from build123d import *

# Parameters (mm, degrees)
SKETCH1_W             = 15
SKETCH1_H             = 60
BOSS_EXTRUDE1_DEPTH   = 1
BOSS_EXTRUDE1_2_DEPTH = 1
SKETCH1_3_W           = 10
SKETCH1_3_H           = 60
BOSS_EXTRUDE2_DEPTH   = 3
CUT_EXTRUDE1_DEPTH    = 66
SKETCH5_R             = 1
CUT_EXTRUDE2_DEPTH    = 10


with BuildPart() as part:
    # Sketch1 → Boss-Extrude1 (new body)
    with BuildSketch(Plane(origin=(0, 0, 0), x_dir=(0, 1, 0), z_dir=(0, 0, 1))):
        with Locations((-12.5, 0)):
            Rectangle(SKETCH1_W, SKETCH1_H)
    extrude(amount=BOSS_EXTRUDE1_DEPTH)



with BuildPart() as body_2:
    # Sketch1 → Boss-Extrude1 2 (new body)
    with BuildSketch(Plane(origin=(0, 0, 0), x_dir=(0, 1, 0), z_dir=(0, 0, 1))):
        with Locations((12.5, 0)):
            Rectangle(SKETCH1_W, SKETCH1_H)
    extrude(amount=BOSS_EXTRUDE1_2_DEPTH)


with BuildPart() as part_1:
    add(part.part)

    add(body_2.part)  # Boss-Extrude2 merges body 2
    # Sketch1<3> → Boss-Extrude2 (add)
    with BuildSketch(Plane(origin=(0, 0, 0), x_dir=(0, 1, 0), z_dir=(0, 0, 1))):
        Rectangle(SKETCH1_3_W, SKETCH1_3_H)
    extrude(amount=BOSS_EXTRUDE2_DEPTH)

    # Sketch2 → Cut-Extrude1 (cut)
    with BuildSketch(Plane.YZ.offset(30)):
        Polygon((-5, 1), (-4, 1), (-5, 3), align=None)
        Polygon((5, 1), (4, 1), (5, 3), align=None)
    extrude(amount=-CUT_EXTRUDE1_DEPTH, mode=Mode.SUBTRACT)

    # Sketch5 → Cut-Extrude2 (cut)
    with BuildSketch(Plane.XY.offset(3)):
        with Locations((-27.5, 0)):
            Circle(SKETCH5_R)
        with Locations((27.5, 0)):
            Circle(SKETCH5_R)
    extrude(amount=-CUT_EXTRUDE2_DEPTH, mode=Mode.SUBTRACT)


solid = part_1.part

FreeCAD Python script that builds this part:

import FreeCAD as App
import Part
import Sketcher
Q = App.Units.Quantity

doc = App.newDocument("Part")
body = doc.addObject("PartDesign::Body", "Body")

sketch1 = doc.addObject("Sketcher::SketchObject", "Sketch")
body.addObject(sketch1)
sketch1.AttachmentSupport = (doc.XY_Plane, [""])
sketch1.MapMode = "FlatFace"
sketch1.addGeometry([
    Part.LineSegment(App.Vector(-30, -20, 0), App.Vector(30, -20, 0)),
    Part.LineSegment(App.Vector(30, -20, 0), App.Vector(30, -5, 0)),
    Part.LineSegment(App.Vector(30, -5, 0), App.Vector(-30, -5, 0)),
    Part.LineSegment(App.Vector(-30, -5, 0), App.Vector(-30, -20, 0)),
], False)
sketch1.addConstraint([
    Sketcher.Constraint("Coincident", 0, 2, 1, 1),
    Sketcher.Constraint("Coincident", 1, 2, 2, 1),
    Sketcher.Constraint("Coincident", 2, 2, 3, 1),
    Sketcher.Constraint("Coincident", 3, 2, 0, 1),
    Sketcher.Constraint("Horizontal", 0),
    Sketcher.Constraint("Vertical", 1),
    Sketcher.Constraint("Horizontal", 2),
    Sketcher.Constraint("Vertical", 3),
    Sketcher.Constraint("DistanceX", 0, 1, 0, 2, Q("60 mm")),
    Sketcher.Constraint("DistanceY", 1, 1, 1, 2, Q("15 mm")),
    Sketcher.Constraint("DistanceX", -1, 1, 0, 2, Q("30 mm")),
    Sketcher.Constraint("DistanceY", 0, 2, -1, 1, Q("20 mm")),
])
pad1 = doc.addObject("PartDesign::Pad", "Pad")
body.addObject(pad1)
pad1.Profile = sketch1
pad1.Length = 1
body2 = doc.addObject("PartDesign::Body", "Body001")

sketch2 = doc.addObject("Sketcher::SketchObject", "Sketch001")
body2.addObject(sketch2)
sketch2.AttachmentSupport = (doc.getObject("XY_Plane001"), [""])
sketch2.MapMode = "FlatFace"
sketch2.addGeometry([
    Part.LineSegment(App.Vector(-30, 5, 0), App.Vector(30, 5, 0)),
    Part.LineSegment(App.Vector(30, 5, 0), App.Vector(30, 20, 0)),
    Part.LineSegment(App.Vector(30, 20, 0), App.Vector(-30, 20, 0)),
    Part.LineSegment(App.Vector(-30, 20, 0), App.Vector(-30, 5, 0)),
], False)
sketch2.addConstraint([
    Sketcher.Constraint("Coincident", 0, 2, 1, 1),
    Sketcher.Constraint("Coincident", 1, 2, 2, 1),
    Sketcher.Constraint("Coincident", 2, 2, 3, 1),
    Sketcher.Constraint("Coincident", 3, 2, 0, 1),
    Sketcher.Constraint("Horizontal", 0),
    Sketcher.Constraint("Vertical", 1),
    Sketcher.Constraint("Horizontal", 2),
    Sketcher.Constraint("Vertical", 3),
    Sketcher.Constraint("DistanceX", 0, 1, 0, 2, Q("60 mm")),
    Sketcher.Constraint("DistanceY", 1, 1, 1, 2, Q("15 mm")),
    Sketcher.Constraint("DistanceX", -1, 1, 0, 2, Q("30 mm")),
    Sketcher.Constraint("DistanceY", -1, 1, 0, 2, Q("5 mm")),
])
pad2 = doc.addObject("PartDesign::Pad", "Pad001")
body2.addObject(pad2)
pad2.Profile = sketch2
pad2.Length = 1
body.AllowCompound = True
doc.recompute()

boolean = doc.addObject("PartDesign::Boolean", "Boolean")
body.addObject(boolean)
boolean.Type = "Fuse"
boolean.addObjects([body2])

sketch3 = doc.addObject("Sketcher::SketchObject", "Sketch002")
body.addObject(sketch3)
sketch3.AttachmentSupport = (doc.XY_Plane, [""])
sketch3.MapMode = "FlatFace"
sketch3.addGeometry([
    Part.LineSegment(App.Vector(-30, -5, 0), App.Vector(30, -5, 0)),
    Part.LineSegment(App.Vector(30, -5, 0), App.Vector(30, 5, 0)),
    Part.LineSegment(App.Vector(30, 5, 0), App.Vector(-30, 5, 0)),
    Part.LineSegment(App.Vector(-30, 5, 0), App.Vector(-30, -5, 0)),
], False)
sketch3.addConstraint([
    Sketcher.Constraint("Coincident", 0, 2, 1, 1),
    Sketcher.Constraint("Coincident", 1, 2, 2, 1),
    Sketcher.Constraint("Coincident", 2, 2, 3, 1),
    Sketcher.Constraint("Coincident", 3, 2, 0, 1),
    Sketcher.Constraint("Horizontal", 0),
    Sketcher.Constraint("Vertical", 1),
    Sketcher.Constraint("Horizontal", 2),
    Sketcher.Constraint("Vertical", 3),
    Sketcher.Constraint("Symmetric", 0, 2, 2, 2, -1, 1),
    Sketcher.Constraint("DistanceX", 0, 1, 0, 2, Q("60 mm")),
    Sketcher.Constraint("DistanceY", 1, 1, 1, 2, Q("10 mm")),
])
pad3 = doc.addObject("PartDesign::Pad", "Pad002")
body.addObject(pad3)
pad3.Profile = sketch3
pad3.Length = 3

sketch4 = doc.addObject("Sketcher::SketchObject", "Sketch003")
body.addObject(sketch4)
sketch4.AttachmentSupport = (doc.YZ_Plane, [""])
sketch4.MapMode = "FlatFace"
sketch4.AttachmentOffset = App.Placement(App.Vector(0, 0, 30), App.Rotation())
sketch4.addGeometry([
    Part.LineSegment(App.Vector(-5, 1, 0), App.Vector(-4, 1, 0)),
    Part.LineSegment(App.Vector(-4, 1, 0), App.Vector(-5, 3, 0)),
    Part.LineSegment(App.Vector(-5, 3, 0), App.Vector(-5, 1, 0)),
    Part.LineSegment(App.Vector(4, 1, 0), App.Vector(5, 1, 0)),
    Part.LineSegment(App.Vector(5, 1, 0), App.Vector(5, 3, 0)),
    Part.LineSegment(App.Vector(5, 3, 0), App.Vector(4, 1, 0)),
], False)
sketch4.addConstraint([
    Sketcher.Constraint("Coincident", 0, 2, 1, 1),
    Sketcher.Constraint("Coincident", 1, 2, 2, 1),
    Sketcher.Constraint("Coincident", 2, 2, 0, 1),
    Sketcher.Constraint("Coincident", 3, 2, 4, 1),
    Sketcher.Constraint("Coincident", 4, 2, 5, 1),
    Sketcher.Constraint("Coincident", 5, 2, 3, 1),
    Sketcher.Constraint("Horizontal", 0),
    Sketcher.Constraint("Vertical", 2),
    Sketcher.Constraint("Horizontal", 3),
    Sketcher.Constraint("Vertical", 4),
    Sketcher.Constraint("Symmetric", 2, 2, 3, 2, -2),
    Sketcher.Constraint("Horizontal", 1, 2, 4, 2),
    Sketcher.Constraint("Equal", 0, 3),
    Sketcher.Constraint("DistanceX", 0, 1, 0, 2, Q("1 mm")),
    Sketcher.Constraint("DistanceY", 2, 2, 2, 1, Q("2 mm")),
    Sketcher.Constraint("DistanceX", 0, 2, -1, 1, Q("4 mm")),
    Sketcher.Constraint("DistanceY", -1, 1, 0, 2, Q("1 mm")),
])
pocket1 = doc.addObject("PartDesign::Pocket", "Pocket")
body.addObject(pocket1)
pocket1.Profile = sketch4
pocket1.Length = 66

sketch5 = doc.addObject("Sketcher::SketchObject", "Sketch004")
body.addObject(sketch5)
sketch5.AttachmentSupport = (doc.XY_Plane, [""])
sketch5.MapMode = "FlatFace"
sketch5.AttachmentOffset = App.Placement(App.Vector(0, 0, 3), App.Rotation())
sketch5.addGeometry([
    Part.Circle(App.Vector(-27.5, 0, 0), App.Vector(0, 0, 1), 1),
    Part.Circle(App.Vector(27.5, 0, 0), App.Vector(0, 0, 1), 1),
], False)
sketch5.addConstraint([
    Sketcher.Constraint("Equal", 0, 1),
    Sketcher.Constraint("Symmetric", 0, 3, 1, 3, -1, 1),
    Sketcher.Constraint("PointOnObject", 0, 3, -1),
    Sketcher.Constraint("Diameter", 0, Q("2 mm")),
    Sketcher.Constraint("DistanceX", 0, 3, 1, 3, Q("55 mm")),
])
pocket2 = doc.addObject("PartDesign::Pocket", "Pocket001")
body.addObject(pocket2)
pocket2.Profile = sketch5
pocket2.Length = 10

doc.recompute()
